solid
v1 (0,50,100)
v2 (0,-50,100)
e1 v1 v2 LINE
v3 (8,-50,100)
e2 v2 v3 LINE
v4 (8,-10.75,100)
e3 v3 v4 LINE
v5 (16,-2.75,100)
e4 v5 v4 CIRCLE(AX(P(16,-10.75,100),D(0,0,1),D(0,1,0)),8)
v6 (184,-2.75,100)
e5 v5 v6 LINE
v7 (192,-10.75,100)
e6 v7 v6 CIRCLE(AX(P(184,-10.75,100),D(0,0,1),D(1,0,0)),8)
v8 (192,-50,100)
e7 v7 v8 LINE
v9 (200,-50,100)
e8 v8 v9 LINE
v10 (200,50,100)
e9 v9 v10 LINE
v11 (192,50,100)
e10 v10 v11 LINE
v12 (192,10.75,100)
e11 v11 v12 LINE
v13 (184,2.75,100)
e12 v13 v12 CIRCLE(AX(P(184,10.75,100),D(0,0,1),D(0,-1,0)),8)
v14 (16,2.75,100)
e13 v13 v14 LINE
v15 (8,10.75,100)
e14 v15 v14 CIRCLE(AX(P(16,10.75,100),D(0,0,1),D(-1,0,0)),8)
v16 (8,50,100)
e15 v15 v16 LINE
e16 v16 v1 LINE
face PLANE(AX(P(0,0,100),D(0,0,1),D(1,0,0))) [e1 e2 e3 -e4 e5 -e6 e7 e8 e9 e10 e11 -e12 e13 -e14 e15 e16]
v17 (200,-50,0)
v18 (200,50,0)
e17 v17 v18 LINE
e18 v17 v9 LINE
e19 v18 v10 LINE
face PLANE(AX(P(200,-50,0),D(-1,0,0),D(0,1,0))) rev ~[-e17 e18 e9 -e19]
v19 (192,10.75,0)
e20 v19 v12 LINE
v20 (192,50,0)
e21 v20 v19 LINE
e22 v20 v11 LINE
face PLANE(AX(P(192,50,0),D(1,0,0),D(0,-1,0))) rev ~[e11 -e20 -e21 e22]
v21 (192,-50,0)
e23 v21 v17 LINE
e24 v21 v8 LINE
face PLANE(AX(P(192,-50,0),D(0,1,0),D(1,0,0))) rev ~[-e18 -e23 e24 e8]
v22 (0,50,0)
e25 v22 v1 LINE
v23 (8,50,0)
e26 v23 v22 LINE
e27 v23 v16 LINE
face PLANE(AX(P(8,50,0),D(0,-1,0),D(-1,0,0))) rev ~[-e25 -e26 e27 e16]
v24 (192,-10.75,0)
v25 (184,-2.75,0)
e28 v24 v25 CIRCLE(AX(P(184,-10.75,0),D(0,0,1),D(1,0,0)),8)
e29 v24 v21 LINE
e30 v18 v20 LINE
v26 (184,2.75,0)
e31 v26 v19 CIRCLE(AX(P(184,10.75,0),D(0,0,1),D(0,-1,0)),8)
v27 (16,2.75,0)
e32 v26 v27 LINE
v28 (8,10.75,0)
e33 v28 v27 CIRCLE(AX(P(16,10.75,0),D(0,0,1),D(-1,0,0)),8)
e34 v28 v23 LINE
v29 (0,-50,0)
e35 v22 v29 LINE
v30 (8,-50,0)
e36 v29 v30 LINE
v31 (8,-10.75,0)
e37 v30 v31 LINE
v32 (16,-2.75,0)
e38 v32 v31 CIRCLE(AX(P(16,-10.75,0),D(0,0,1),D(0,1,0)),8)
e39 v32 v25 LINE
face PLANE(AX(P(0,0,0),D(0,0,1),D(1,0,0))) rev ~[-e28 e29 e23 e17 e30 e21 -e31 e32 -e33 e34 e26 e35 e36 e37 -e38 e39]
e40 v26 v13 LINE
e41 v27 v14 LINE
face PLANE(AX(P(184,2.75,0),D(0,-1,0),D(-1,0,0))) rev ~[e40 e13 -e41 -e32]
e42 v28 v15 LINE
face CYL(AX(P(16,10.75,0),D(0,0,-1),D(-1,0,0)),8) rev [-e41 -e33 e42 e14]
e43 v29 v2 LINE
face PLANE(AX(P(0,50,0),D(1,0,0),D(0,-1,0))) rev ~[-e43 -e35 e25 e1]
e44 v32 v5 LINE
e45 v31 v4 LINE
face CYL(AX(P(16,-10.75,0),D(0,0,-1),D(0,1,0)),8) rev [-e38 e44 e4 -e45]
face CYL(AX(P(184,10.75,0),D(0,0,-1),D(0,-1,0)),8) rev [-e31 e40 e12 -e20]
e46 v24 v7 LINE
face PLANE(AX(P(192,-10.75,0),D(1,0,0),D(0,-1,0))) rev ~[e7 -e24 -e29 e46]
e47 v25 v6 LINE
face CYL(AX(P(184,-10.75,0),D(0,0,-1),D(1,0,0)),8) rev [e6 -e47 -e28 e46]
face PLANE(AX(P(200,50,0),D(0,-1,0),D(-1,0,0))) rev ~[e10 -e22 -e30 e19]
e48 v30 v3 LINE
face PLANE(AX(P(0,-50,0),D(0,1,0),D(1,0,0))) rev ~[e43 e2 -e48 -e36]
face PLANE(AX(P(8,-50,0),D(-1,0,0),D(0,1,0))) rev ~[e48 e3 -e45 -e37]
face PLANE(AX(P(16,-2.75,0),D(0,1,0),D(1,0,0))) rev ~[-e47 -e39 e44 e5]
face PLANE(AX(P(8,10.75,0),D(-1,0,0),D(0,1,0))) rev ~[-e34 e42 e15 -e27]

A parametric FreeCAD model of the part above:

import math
import FreeCAD as App
import Part
import Sketcher

V = App.Vector
Q = App.Units.Quantity

doc = App.newDocument("Part")
body = doc.addObject("PartDesign::Body", "Body")

sketch1 = body.newObject("Sketcher::SketchObject", "Sketch")
sketch1.AttachmentSupport = (doc.getObject("XY_Plane"), [""])
sketch1.MapMode = "FlatFace"
sketch1.addGeometry(Part.LineSegment(V(8, 50, 0), V(0, 50, 0)), False)
sketch1.addGeometry(Part.LineSegment(V(0, 50, 0), V(0, -50, 0)), False)
sketch1.addGeometry(Part.LineSegment(V(0, -50, 0), V(8, -50, 0)), False)
sketch1.addGeometry(Part.LineSegment(V(8, -50, 0), V(8, -10.75, 0)), False)
sketch1.addGeometry(Part.ArcOfCircle(Part.Circle(V(16, -10.75, 0), V(0, 0, 1), 8), math.radians(90), math.radians(180)), False)
sketch1.addGeometry(Part.LineSegment(V(16, -2.75, 0), V(184, -2.75, 0)), False)
sketch1.addGeometry(Part.ArcOfCircle(Part.Circle(V(184, -10.75, 0), V(0, 0, 1), 8), math.radians(0), math.radians(90)), False)
sketch1.addGeometry(Part.LineSegment(V(192, -10.75, 0), V(192, -50, 0)), False)
sketch1.addGeometry(Part.LineSegment(V(192, -50, 0), V(200, -50, 0)), False)
sketch1.addGeometry(Part.LineSegment(V(200, -50, 0), V(200, 50, 0)), False)
sketch1.addGeometry(Part.LineSegment(V(200, 50, 0), V(192, 50, 0)), False)
sketch1.addGeometry(Part.LineSegment(V(192, 50, 0), V(192, 10.75, 0)), False)
sketch1.addGeometry(Part.ArcOfCircle(Part.Circle(V(184, 10.75, 0), V(0, 0, 1), 8), math.radians(-90), math.radians(0)), False)
sketch1.addGeometry(Part.LineSegment(V(184, 2.75, 0), V(16, 2.75, 0)), False)
sketch1.addGeometry(Part.ArcOfCircle(Part.Circle(V(16, 10.75, 0), V(0, 0, 1), 8), math.radians(180), math.radians(270)), False)
sketch1.addGeometry(Part.LineSegment(V(8, 10.75, 0), V(8, 50, 0)), False)
sketch1.addConstraint(Sketcher.Constraint("Coincident", 0, 2, 1, 1))
sketch1.addConstraint(Sketcher.Constraint("Coincident", 1, 2, 2, 1))
sketch1.addConstraint(Sketcher.Constraint("Coincident", 2, 2, 3, 1))
sketch1.addConstraint(Sketcher.Constraint("Tangent", 3, 2, 4, 2))
sketch1.addConstraint(Sketcher.Constraint("Tangent", 4, 1, 5, 1))
sketch1.addConstraint(Sketcher.Constraint("Tangent", 5, 2, 6, 2))
sketch1.addConstraint(Sketcher.Constraint("Tangent", 6, 1, 7, 1))
sketch1.addConstraint(Sketcher.Constraint("Coincident", 7, 2, 8, 1))
sketch1.addConstraint(Sketcher.Constraint("Coincident", 8, 2, 9, 1))
sketch1.addConstraint(Sketcher.Constraint("Coincident", 9, 2, 10, 1))
sketch1.addConstraint(Sketcher.Constraint("Coincident", 10, 2, 11, 1))
sketch1.addConstraint(Sketcher.Constraint("Tangent", 11, 2, 12, 2))
sketch1.addConstraint(Sketcher.Constraint("Tangent", 12, 1, 13, 1))
sketch1.addConstraint(Sketcher.Constraint("Tangent", 13, 2, 14, 2))
sketch1.addConstraint(Sketcher.Constraint("Tangent", 14, 1, 15, 1))
sketch1.addConstraint(Sketcher.Constraint("Coincident", 15, 2, 0, 1))
sketch1.addConstraint(Sketcher.Constraint("Horizontal", 0))
sketch1.addConstraint(Sketcher.Constraint("Vertical", 1))
sketch1.addConstraint(Sketcher.Constraint("Horizontal", 2))
sketch1.addConstraint(Sketcher.Constraint("Vertical", 3))
sketch1.addConstraint(Sketcher.Constraint("Horizontal", 5))
sketch1.addConstraint(Sketcher.Constraint("Vertical", 7))
sketch1.addConstraint(Sketcher.Constraint("Horizontal", 8))
sketch1.addConstraint(Sketcher.Constraint("Vertical", 9))
sketch1.addConstraint(Sketcher.Constraint("Horizontal", 10))
sketch1.addConstraint(Sketcher.Constraint("Vertical", 11))
sketch1.addConstraint(Sketcher.Constraint("Horizontal", 13))
sketch1.addConstraint(Sketcher.Constraint("Vertical", 15))
sketch1.addConstraint(Sketcher.Constraint("Equal", 4, 6))
sketch1.addConstraint(Sketcher.Constraint("Equal", 6, 12))
sketch1.addConstraint(Sketcher.Constraint("Equal", 12, 14))
sketch1.addConstraint(Sketcher.Constraint("Symmetric", 0, 2, 1, 2, -1, 1))
sketch1.addConstraint(Sketcher.Constraint("Symmetric", 6, 3, 12, 3, -1))
sketch1.addConstraint(Sketcher.Constraint("Horizontal", 2, 2, 7, 2))
sketch1.addConstraint(Sketcher.Constraint("Horizontal", 0, 2, 9, 2))
sketch1.addConstraint(Sketcher.Constraint("Vertical", 4, 3, 14, 3))
sketch1.addConstraint(Sketcher.Constraint("Equal", 2, 8))
sketch1.addConstraint(Sketcher.Constraint("Radius", 4, Q("8 mm")))
sketch1.addConstraint(Sketcher.Constraint("DistanceX", 0, 2, 0, 1, Q("8 mm")))
sketch1.addConstraint(Sketcher.Constraint("DistanceX", 5, 1, 5, 2, Q("168 mm")))
sketch1.addConstraint(Sketcher.Constraint("DistanceY", 1, 2, 1, 1, Q("100 mm")))
sketch1.addConstraint(Sketcher.Constraint("DistanceY", 3, 1, 3, 2, Q("39.25 mm")))
pad1 = body.newObject("PartDesign::Pad", "Pad")
pad1.Profile = sketch1
pad1.Length = 100

doc.recompute()
